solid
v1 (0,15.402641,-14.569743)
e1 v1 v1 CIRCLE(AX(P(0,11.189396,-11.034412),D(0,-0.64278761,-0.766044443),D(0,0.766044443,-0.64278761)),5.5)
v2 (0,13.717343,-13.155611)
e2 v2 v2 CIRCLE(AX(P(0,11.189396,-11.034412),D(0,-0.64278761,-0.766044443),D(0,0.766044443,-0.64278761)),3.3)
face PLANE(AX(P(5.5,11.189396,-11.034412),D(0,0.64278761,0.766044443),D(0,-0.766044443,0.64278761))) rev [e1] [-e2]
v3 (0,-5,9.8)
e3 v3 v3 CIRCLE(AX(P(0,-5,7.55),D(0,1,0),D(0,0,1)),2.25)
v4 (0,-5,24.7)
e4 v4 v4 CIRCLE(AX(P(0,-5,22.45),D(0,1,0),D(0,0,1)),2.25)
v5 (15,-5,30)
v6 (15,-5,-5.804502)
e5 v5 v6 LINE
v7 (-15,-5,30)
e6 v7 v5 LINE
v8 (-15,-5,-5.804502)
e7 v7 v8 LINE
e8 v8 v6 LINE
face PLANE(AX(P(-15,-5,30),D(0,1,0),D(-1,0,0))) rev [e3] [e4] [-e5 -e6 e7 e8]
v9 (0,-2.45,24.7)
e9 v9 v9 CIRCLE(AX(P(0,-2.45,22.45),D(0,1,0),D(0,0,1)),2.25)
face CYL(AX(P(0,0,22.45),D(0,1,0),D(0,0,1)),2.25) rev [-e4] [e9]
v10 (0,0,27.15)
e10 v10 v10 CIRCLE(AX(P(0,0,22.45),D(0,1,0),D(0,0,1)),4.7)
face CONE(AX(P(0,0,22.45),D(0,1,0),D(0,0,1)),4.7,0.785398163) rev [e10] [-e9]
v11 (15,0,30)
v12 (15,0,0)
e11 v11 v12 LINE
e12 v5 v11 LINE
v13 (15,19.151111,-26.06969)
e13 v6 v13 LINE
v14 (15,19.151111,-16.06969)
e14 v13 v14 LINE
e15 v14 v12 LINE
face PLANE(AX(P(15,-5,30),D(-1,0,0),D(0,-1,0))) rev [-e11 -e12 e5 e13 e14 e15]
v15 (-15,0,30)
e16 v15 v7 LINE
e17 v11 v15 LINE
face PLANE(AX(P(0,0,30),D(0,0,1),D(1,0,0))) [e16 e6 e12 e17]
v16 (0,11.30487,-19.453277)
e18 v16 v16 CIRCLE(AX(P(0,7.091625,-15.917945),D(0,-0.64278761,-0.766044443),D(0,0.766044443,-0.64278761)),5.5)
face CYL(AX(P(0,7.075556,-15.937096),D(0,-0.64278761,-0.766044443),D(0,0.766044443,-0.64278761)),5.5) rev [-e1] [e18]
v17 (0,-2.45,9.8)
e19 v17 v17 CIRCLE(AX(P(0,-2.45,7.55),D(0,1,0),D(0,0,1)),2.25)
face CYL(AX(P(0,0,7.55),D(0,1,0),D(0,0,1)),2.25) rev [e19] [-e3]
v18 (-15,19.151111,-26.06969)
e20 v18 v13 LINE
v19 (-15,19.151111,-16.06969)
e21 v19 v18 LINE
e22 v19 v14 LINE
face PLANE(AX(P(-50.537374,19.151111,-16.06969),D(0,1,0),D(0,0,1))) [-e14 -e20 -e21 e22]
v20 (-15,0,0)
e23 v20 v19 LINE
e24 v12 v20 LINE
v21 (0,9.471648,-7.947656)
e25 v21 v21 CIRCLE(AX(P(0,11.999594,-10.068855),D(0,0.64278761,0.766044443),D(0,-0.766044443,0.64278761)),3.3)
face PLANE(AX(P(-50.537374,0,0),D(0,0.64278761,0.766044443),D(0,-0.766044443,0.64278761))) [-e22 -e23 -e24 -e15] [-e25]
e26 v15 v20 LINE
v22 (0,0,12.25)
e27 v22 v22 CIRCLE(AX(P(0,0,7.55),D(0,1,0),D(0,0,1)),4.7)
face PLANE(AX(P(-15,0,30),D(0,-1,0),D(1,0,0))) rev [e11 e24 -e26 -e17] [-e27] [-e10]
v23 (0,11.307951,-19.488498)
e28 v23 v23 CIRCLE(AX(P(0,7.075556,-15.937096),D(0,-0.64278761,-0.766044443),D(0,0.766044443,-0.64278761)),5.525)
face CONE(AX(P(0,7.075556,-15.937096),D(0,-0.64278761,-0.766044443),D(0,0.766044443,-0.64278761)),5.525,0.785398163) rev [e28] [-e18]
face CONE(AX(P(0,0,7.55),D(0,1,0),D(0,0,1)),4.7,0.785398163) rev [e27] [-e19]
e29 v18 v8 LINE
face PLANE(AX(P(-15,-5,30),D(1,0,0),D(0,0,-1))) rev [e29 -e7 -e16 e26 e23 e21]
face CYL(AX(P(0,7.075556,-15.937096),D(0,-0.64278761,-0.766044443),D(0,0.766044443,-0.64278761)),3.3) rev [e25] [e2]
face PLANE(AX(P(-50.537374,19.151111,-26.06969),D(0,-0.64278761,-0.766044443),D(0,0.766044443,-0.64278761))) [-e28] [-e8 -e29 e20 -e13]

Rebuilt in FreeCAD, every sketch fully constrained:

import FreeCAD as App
import Part
import Sketcher

V = App.Vector
Q = App.Units.Quantity

doc = App.newDocument("Part")
body = doc.addObject("PartDesign::Body", "Body")

# Sketch on XY plane
sketch1 = body.newObject("Sketcher::SketchObject", "Sketch")
sketch1.AttachmentSupport = (doc.getObject("XY_Plane"), [""])
sketch1.MapMode = "FlatFace"
sketch1.addGeometry(Part.LineSegment(V(-15, 0, 0), V(-15, -5, 0)), False)
sketch1.addGeometry(Part.LineSegment(V(-15, -5, 0), V(15, -5, 0)), False)
sketch1.addGeometry(Part.LineSegment(V(15, -5, 0), V(15, 0, 0)), False)
sketch1.addGeometry(Part.LineSegment(V(15, 0, 0), V(-15, 0, 0)), False)
sketch1.addConstraint(Sketcher.Constraint("Coincident", 0, 2, 1, 1))
sketch1.addConstraint(Sketcher.Constraint("Coincident", 1, 2, 2, 1))
sketch1.addConstraint(Sketcher.Constraint("Coincident", 2, 2, 3, 1))
sketch1.addConstraint(Sketcher.Constraint("Coincident", 3, 2, 0, 1))
sketch1.addConstraint(Sketcher.Constraint("Vertical", 0))
sketch1.addConstraint(Sketcher.Constraint("Horizontal", 1))
sketch1.addConstraint(Sketcher.Constraint("Vertical", 2))
sketch1.addConstraint(Sketcher.Constraint("Horizontal", 3))
sketch1.addConstraint(Sketcher.Constraint("Symmetric", 2, 2, 3, 2, -1, 1))
sketch1.addConstraint(Sketcher.Constraint("DistanceX", 1, 1, 1, 2, 30.0))
sketch1.addConstraint(Sketcher.Constraint("DistanceY", 0, 2, 0, 1, 5.0))
pad1 = body.newObject("PartDesign::Pad", "Pad")
pad1.Profile = sketch1
pad1.Length = 30

# Sketch on YZ plane
sketch2 = body.newObject("Sketcher::SketchObject", "Sketch001")
sketch2.AttachmentSupport = (doc.getObject("YZ_Plane"), [""])
sketch2.MapMode = "FlatFace"
sketch2.AttachmentOffset = App.Placement(V(0, 0, 15), App.Rotation())
sketch2.addGeometry(Part.LineSegment(V(19, -16, 0), V(0, 0, 0)), False)
sketch2.addGeometry(Part.LineSegment(V(0, 0, 0), V(-5, 0, 0)), False)
sketch2.addGeometry(Part.LineSegment(V(-5, 0, 0), V(-5, -6, 0)), False)
sketch2.addGeometry(Part.LineSegment(V(-5, -6, 0), V(19, -26, 0)), False)
sketch2.addGeometry(Part.LineSegment(V(19, -26, 0), V(19, -16, 0)), False)
sketch2.addConstraint(Sketcher.Constraint("Coincident", 0, 2, 1, 1))
sketch2.addConstraint(Sketcher.Constraint("Coincident", 1, 2, 2, 1))
sketch2.addConstraint(Sketcher.Constraint("Coincident", 2, 2, 3, 1))
sketch2.addConstraint(Sketcher.Constraint("Coincident", 3, 2, 4, 1))
sketch2.addConstraint(Sketcher.Constraint("Coincident", 4, 2, 0, 1))
sketch2.addConstraint(Sketcher.Constraint("Horizontal", 1))
sketch2.addConstraint(Sketcher.Constraint("Vertical", 2))
sketch2.addConstraint(Sketcher.Constraint("Vertical", 4))
sketch2.addConstraint(Sketcher.Constraint("Coincident", 0, 2, -1, 1))
sketch2.addConstraint(Sketcher.Constraint("Parallel", 0, 3))
sketch2.addConstraint(Sketcher.Constraint("DistanceX", 1, 2, 1, 1, 5.0))
sketch2.addConstraint(Sketcher.Constraint("DistanceY", 4, 1, 4, 2, 10.0))
sketch2.addConstraint(Sketcher.Constraint("Angle", 0, Q("140 deg")))
sketch2.addConstraint(Sketcher.Constraint("Distance", 0, 25.0))
pad2 = body.newObject("PartDesign::Pad", "Pad001")
pad2.Profile = sketch2
pad2.Length = 30
pad2.Reversed = True

# Sketch on YZ plane
sketch3 = body.newObject("Sketcher::SketchObject", "Sketch002")
sketch3.AttachmentSupport = (doc.getObject("YZ_Plane"), [""])
sketch3.MapMode = "FlatFace"
sketch3.addGeometry(Part.LineSegment(V(34.684, 16.966, 0), V(7.076, -15.937, 0)), False)
sketch3.addGeometry(Part.LineSegment(V(7.076, -15.937, 0), V(11.308, -19.488, 0)), False)
sketch3.addGeometry(Part.LineSegment(V(11.308, -19.488, 0), V(11.305, -19.453, 0)), False)
sketch3.addGeometry(Part.LineSegment(V(11.305, -19.453, 0), V(15.403, -14.57, 0)), False)
sketch3.addGeometry(Part.LineSegment(V(15.403, -14.57, 0), V(13.717, -13.156, 0)), False)
sketch3.addGeometry(Part.LineSegment(V(13.717, -13.156, 0), V(37.212, 14.845, 0)), False)
sketch3.addGeometry(Part.LineSegment(V(37.212, 14.845, 0), V(34.684, 16.966, 0)), False)
sketch3.addGeometry(Part.LineSegment(V(7.076, -15.937, 0), V(34.684, 16.966, 0)), True)  # axis
sketch3.addConstraint(Sketcher.Constraint("Coincident", 0, 2, 1, 1))
sketch3.addConstraint(Sketcher.Constraint("Coincident", 1, 2, 2, 1))
sketch3.addConstraint(Sketcher.Constraint("Coincident", 2, 2, 3, 1))
sketch3.addConstraint(Sketcher.Constraint("Coincident", 3, 2, 4, 1))
sketch3.addConstraint(Sketcher.Constraint("Coincident", 4, 2, 5, 1))
sketch3.addConstraint(Sketcher.Constraint("Coincident", 5, 2, 6, 1))
sketch3.addConstraint(Sketcher.Constraint("Coincident", 6, 2, 0, 1))
sketch3.addConstraint(Sketcher.Constraint("Coincident", 7, 1, 0, 2))
sketch3.addConstraint(Sketcher.Constraint("Coincident", 7, 2, 6, 2))
sketch3.addConstraint(Sketcher.Constraint("Perpendicular", 0, 1))
sketch3.addConstraint(Sketcher.Constraint("Perpendicular", 1, 3))
sketch3.addConstraint(Sketcher.Constraint("Perpendicular", 3, 4))
sketch3.addConstraint(Sketcher.Constraint("Perpendicular", 4, 5))
sketch3.addConstraint(Sketcher.Constraint("Perpendicular", 5, 6))
sketch3.addConstraint(Sketcher.Constraint("Angle", 0, Q("-130 deg")))
sketch3.addConstraint(Sketcher.Constraint("Angle", 2, Q("95 deg")))
sketch3.addConstraint(Sketcher.Constraint("Distance", 4, 2.2))
sketch3.addConstraint(Sketcher.Constraint("Distance", 6, 3.3))
sketch3.addConstraint(Sketcher.Constraint("Distance", 1, 5.525))
sketch3.addConstraint(Sketcher.Constraint("Distance", 3, 6.375))
sketch3.addConstraint(Sketcher.Constraint("DistanceX", -1, 1, 1, 2, 11.307951))
sketch3.addConstraint(Sketcher.Constraint("DistanceY", 4, 2, -1, 1, 13.155611))
sketch3.addConstraint(Sketcher.Constraint("DistanceY", -1, 1, 5, 2, 14.84475))
groove = body.newObject("PartDesign::Groove", "Groove")
groove.Profile = sketch3
groove.ReferenceAxis = (sketch3, ["Axis0"])
groove.Angle = 360

# Sketch on XZ plane
sketch4 = body.newObject("Sketcher::SketchObject", "Sketch003")
sketch4.AttachmentSupport = (doc.getObject("XZ_Plane"), [""])
sketch4.MapMode = "FlatFace"
sketch4.addGeometry(Part.Circle(V(0, 7.5, 0), V(0, 0, 1), 2.2), False)
sketch4.addGeometry(Part.Circle(V(0, 22.4, 0), V(0, 0, 1), 2.2), False)
sketch4.addConstraint(Sketcher.Constraint("Equal", 0, 1))
sketch4.addConstraint(Sketcher.Constraint("PointOnObject", 0, 3, -2))
sketch4.addConstraint(Sketcher.Constraint("PointOnObject", 1, 3, -2))
sketch4.addConstraint(Sketcher.Constraint("Diameter", 0, 4.5))
sketch4.addConstraint(Sketcher.Constraint("DistanceY", 0, 3, 1, 3, 14.9))
sketch4.addConstraint(Sketcher.Constraint("DistanceY", -1, 1, 0, 3, 7.55))
doc.recompute()
hole = body.newObject("PartDesign::Hole", "Hole")
hole.Profile = sketch4
hole.ThreadType = "None"
hole.Diameter = 4.5
hole.DepthType = "ThroughAll"
hole.HoleCutType = "Countersink"
hole.HoleCutDiameter = 9.4
hole.HoleCutCountersinkAngle = 90
hole.Reversed = True

doc.recompute()
